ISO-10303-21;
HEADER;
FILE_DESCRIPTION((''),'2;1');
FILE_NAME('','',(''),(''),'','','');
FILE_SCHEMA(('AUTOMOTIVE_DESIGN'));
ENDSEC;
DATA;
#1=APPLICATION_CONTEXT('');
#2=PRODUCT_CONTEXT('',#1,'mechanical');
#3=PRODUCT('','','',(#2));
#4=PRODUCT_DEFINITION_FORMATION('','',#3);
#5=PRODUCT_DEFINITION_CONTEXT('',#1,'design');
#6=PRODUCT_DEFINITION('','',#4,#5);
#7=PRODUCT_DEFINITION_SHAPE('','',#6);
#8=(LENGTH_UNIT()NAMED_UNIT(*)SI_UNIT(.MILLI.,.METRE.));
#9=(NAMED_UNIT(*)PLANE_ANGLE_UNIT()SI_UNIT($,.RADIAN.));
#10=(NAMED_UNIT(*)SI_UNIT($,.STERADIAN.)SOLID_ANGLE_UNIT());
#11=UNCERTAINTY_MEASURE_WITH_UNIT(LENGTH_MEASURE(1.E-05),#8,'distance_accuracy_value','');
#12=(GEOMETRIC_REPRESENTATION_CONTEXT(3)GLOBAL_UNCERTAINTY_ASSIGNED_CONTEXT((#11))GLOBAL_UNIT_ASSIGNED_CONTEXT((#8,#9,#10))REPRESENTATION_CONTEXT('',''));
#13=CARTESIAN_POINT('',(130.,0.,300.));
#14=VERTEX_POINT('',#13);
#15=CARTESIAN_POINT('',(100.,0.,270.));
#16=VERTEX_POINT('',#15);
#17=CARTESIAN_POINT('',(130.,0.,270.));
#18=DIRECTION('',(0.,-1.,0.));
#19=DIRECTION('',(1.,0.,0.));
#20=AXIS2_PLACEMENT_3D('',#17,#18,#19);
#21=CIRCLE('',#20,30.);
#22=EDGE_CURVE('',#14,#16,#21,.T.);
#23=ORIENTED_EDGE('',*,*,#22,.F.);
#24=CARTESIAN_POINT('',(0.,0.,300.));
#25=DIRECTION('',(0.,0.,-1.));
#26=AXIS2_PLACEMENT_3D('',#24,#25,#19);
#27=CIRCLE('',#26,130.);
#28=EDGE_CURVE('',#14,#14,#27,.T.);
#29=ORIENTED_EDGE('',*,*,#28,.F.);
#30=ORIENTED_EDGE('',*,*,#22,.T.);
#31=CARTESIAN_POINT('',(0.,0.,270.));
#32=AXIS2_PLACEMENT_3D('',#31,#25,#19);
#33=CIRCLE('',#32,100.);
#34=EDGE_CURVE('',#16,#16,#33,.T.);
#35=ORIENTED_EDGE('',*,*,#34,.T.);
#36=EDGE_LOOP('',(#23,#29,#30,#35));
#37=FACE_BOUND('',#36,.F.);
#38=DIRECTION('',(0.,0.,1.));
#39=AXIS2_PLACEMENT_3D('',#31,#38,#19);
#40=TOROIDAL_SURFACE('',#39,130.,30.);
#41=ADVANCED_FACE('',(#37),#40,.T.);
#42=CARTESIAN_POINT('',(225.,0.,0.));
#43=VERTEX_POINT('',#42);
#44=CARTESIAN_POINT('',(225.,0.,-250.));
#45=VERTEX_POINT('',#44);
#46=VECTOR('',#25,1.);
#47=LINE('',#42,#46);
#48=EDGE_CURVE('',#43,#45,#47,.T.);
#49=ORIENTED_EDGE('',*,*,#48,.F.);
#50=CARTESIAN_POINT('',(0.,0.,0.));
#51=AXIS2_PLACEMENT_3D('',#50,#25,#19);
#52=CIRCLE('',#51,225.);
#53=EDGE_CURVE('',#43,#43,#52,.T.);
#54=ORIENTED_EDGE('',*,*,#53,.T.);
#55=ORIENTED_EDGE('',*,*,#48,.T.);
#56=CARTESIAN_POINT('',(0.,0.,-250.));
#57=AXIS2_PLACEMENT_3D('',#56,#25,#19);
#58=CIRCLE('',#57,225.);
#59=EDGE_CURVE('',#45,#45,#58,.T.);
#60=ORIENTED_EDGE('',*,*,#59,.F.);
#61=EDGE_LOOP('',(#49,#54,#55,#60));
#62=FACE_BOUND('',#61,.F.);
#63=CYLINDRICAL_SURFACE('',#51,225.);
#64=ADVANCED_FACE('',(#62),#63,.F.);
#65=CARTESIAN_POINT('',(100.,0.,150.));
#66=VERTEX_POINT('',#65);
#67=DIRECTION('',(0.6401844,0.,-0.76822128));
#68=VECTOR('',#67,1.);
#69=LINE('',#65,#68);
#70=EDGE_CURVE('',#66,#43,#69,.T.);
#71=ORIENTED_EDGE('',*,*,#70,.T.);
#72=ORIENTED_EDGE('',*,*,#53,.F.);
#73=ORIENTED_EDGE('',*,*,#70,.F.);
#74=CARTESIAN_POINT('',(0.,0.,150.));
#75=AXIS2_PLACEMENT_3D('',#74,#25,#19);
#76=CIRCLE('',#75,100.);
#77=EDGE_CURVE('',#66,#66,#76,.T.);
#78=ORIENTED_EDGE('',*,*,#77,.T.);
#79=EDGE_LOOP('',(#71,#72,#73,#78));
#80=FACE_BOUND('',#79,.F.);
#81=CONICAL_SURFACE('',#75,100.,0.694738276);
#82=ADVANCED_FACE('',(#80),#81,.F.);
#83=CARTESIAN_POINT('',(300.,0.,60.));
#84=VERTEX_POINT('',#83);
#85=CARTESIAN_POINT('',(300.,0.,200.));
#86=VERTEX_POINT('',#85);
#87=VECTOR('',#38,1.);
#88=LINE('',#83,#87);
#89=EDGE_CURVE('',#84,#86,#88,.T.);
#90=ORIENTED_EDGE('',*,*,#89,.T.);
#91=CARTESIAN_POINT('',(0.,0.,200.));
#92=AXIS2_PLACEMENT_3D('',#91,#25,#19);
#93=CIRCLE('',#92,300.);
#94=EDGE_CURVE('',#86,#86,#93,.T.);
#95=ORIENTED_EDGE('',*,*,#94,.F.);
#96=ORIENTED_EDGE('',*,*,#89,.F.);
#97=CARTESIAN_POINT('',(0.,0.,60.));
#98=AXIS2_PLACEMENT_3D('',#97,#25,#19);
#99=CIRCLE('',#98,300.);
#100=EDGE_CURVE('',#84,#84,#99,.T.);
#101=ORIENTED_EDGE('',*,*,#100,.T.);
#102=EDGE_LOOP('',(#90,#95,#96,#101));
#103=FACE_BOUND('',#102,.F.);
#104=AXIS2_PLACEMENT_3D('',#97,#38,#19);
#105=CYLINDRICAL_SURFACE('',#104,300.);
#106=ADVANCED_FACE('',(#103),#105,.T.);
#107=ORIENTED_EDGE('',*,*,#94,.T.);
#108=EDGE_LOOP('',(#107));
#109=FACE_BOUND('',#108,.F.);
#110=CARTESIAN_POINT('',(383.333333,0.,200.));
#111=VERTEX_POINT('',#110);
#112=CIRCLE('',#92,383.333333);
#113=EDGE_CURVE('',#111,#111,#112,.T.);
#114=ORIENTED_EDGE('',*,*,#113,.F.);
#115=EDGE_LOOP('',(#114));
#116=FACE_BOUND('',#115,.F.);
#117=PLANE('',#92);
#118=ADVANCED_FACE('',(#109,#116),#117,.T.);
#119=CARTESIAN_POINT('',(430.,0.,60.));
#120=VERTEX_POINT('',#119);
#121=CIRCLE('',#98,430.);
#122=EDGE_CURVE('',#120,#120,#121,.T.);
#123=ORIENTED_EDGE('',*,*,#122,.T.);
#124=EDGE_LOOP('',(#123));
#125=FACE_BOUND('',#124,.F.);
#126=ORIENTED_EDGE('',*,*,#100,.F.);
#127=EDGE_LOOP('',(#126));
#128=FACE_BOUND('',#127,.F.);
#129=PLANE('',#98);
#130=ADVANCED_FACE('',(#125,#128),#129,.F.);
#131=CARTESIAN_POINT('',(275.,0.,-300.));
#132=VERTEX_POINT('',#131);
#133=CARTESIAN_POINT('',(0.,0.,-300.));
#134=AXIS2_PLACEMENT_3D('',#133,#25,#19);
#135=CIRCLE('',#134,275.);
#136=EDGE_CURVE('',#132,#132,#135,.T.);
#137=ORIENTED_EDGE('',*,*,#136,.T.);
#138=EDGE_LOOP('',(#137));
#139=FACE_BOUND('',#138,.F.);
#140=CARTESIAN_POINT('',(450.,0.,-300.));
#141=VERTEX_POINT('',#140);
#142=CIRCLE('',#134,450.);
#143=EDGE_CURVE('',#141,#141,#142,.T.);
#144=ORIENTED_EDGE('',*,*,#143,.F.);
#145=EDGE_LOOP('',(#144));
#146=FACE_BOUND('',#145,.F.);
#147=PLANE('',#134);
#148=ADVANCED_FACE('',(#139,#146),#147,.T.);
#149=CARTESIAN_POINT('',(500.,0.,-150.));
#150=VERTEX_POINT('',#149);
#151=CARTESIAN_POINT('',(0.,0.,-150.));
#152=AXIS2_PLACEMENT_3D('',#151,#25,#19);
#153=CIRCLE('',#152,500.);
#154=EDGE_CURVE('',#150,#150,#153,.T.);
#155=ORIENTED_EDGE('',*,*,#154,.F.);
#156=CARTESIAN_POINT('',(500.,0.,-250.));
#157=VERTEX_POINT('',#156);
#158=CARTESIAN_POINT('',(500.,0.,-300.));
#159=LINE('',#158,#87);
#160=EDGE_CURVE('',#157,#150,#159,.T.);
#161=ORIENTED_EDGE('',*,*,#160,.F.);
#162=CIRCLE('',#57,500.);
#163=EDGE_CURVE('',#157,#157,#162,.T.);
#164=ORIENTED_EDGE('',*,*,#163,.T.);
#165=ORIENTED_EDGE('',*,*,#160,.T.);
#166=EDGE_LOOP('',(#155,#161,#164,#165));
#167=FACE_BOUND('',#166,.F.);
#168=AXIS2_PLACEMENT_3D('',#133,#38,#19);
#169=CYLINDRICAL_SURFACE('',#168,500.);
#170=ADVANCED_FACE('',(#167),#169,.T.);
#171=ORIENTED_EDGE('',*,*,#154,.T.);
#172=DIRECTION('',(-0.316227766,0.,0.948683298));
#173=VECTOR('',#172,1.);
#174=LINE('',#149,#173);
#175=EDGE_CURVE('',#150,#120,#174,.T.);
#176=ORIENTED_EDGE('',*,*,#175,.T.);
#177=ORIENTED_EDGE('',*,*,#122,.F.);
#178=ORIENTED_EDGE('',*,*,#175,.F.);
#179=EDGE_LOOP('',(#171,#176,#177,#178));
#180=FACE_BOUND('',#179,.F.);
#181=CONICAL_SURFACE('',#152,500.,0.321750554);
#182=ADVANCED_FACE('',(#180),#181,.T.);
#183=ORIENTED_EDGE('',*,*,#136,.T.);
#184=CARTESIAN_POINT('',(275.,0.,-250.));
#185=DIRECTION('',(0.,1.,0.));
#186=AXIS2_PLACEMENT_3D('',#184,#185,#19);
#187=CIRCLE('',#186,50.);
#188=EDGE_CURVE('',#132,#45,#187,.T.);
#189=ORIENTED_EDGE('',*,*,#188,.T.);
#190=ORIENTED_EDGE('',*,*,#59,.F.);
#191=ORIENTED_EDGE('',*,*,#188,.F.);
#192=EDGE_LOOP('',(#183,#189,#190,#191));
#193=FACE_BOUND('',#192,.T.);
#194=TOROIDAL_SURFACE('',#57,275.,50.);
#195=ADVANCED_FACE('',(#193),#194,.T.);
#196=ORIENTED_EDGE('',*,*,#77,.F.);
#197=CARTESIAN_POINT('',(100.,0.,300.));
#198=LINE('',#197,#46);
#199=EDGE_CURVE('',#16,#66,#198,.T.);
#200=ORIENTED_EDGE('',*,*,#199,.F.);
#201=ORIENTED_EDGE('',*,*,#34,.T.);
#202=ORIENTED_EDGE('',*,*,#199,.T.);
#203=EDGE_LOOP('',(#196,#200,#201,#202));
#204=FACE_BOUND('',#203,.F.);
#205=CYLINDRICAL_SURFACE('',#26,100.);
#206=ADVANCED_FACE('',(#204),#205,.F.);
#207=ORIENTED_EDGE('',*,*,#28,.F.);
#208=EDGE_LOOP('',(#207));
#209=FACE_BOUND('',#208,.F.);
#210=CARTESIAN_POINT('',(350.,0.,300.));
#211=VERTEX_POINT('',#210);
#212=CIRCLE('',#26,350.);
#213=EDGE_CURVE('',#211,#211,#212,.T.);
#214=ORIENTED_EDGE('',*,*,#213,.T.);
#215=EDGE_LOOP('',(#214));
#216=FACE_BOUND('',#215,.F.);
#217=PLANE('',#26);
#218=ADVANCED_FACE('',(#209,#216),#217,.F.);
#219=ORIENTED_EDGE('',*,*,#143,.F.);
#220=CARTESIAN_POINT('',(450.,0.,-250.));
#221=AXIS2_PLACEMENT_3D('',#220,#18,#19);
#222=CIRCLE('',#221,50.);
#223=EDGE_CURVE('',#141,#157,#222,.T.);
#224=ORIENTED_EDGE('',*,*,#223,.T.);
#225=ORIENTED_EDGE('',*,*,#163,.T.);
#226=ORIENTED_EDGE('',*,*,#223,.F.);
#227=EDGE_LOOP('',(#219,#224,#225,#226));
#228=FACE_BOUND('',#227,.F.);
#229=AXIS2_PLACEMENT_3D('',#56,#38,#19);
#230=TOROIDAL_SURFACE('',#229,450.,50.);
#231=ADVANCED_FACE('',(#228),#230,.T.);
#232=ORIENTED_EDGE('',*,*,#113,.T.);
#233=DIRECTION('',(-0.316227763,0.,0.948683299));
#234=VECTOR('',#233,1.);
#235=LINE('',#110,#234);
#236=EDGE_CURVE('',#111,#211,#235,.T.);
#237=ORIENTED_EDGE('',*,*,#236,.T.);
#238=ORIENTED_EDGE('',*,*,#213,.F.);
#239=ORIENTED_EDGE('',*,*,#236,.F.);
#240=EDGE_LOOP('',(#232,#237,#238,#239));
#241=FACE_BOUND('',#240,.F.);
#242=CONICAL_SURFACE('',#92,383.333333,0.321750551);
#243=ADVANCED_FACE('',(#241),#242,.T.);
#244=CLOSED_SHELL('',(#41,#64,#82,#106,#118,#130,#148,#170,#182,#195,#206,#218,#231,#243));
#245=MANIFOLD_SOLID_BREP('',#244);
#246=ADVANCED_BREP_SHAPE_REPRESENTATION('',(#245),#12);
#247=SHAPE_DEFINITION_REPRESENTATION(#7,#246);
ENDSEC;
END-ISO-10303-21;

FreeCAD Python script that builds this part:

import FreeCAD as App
import Part
import Sketcher
Q = App.Units.Quantity


def edges_at(feature, points):
    """Names of the edges that pass closest to the given points."""
    edges = feature.Shape.Edges
    near = lambda p: min(range(len(edges)), key=lambda i: edges[i].distToShape(Part.Vertex(*p))[0])
    return sorted({f"Edge{near(p) + 1}" for p in points})


def add_polygon(sketch, points):
    """Adds a closed chain of lines whose ends are joined by coincident constraints."""
    first, n = sketch.GeometryCount, len(points)
    for a, b in zip(points, points[1:] + points[:1]):
        sketch.addGeometry(Part.LineSegment(App.Vector(*a, 0), App.Vector(*b, 0)), False)
    for i in range(n):
        sketch.addConstraint(Sketcher.Constraint("Coincident", first + i, 2, first + (i + 1) % n, 1))

doc = App.newDocument("Part")
body = doc.addObject("PartDesign::Body", "Body")

# Sketch on XZ plane
sketch1 = body.newObject("Sketcher::SketchObject", "Sketch")
sketch1.AttachmentSupport = (doc.getObject("XZ_Plane"), [""])
sketch1.MapMode = "FlatFace"
add_polygon(sketch1, [(350, 300), (100, 300), (100, 150), (225, 0), (225, -300), (500, -300), (500, -150), (430, 60), (300, 60), (300, 200), (383.333333, 200)])  # lines 0-10
sketch1.addConstraint([
    Sketcher.Constraint("Horizontal", 0),
    Sketcher.Constraint("Vertical", 1),
    Sketcher.Constraint("Vertical", 3),
    Sketcher.Constraint("Horizontal", 4),
    Sketcher.Constraint("Vertical", 5),
    Sketcher.Constraint("Horizontal", 7),
    Sketcher.Constraint("Vertical", 8),
    Sketcher.Constraint("Horizontal", 9),
    Sketcher.Constraint("PointOnObject", 2, 2, -1),
    Sketcher.Constraint("Parallel", 6, 10),
    Sketcher.Constraint("Equal", 1, 5),
    Sketcher.Constraint("DistanceX", 0, 2, 0, 1, Q("250 mm")),
    Sketcher.Constraint("DistanceX", 4, 1, 4, 2, Q("275 mm")),
    Sketcher.Constraint("DistanceX", 7, 2, 7, 1, Q("130 mm")),
    Sketcher.Constraint("DistanceY", 1, 2, 1, 1, Q("150 mm")),
    Sketcher.Constraint("DistanceY", 3, 2, 3, 1, Q("300 mm")),
    Sketcher.Constraint("DistanceY", 8, 1, 8, 2, Q("140 mm")),
    Sketcher.Constraint("DistanceX", -1, 1, 0, 2, Q("100 mm")),
    Sketcher.Constraint("DistanceY", -1, 1, 0, 2, Q("300 mm")),
    Sketcher.Constraint("DistanceX", -1, 1, 2, 2, Q("225 mm")),
    Sketcher.Constraint("DistanceX", -1, 1, 6, 2, Q("430 mm")),
    Sketcher.Constraint("DistanceY", -1, 1, 6, 2, Q("60 mm")),
])
revolution = body.newObject("PartDesign::Revolution", "Revolution")
revolution.Profile = sketch1
revolution.ReferenceAxis = (sketch1, ["V_Axis"])
revolution.Angle = 360
doc.recompute()

fillet = body.newObject("PartDesign::Fillet", "Fillet")
fillet.Base = (revolution, edges_at(revolution, [(-100, 0, 300)]))
fillet.Radius = 30
doc.recompute()

fillet2 = body.newObject("PartDesign::Fillet", "Fillet001")
fillet2.Base = (fillet, edges_at(fillet, [(-500, 0, -300)]))
fillet2.Radius = 50
doc.recompute()

fillet3 = body.newObject("PartDesign::Fillet", "Fillet002")
fillet3.Base = (fillet2, edges_at(fillet2, [(-225, 0, -300)]))
fillet3.Radius = 50

doc.recompute()
